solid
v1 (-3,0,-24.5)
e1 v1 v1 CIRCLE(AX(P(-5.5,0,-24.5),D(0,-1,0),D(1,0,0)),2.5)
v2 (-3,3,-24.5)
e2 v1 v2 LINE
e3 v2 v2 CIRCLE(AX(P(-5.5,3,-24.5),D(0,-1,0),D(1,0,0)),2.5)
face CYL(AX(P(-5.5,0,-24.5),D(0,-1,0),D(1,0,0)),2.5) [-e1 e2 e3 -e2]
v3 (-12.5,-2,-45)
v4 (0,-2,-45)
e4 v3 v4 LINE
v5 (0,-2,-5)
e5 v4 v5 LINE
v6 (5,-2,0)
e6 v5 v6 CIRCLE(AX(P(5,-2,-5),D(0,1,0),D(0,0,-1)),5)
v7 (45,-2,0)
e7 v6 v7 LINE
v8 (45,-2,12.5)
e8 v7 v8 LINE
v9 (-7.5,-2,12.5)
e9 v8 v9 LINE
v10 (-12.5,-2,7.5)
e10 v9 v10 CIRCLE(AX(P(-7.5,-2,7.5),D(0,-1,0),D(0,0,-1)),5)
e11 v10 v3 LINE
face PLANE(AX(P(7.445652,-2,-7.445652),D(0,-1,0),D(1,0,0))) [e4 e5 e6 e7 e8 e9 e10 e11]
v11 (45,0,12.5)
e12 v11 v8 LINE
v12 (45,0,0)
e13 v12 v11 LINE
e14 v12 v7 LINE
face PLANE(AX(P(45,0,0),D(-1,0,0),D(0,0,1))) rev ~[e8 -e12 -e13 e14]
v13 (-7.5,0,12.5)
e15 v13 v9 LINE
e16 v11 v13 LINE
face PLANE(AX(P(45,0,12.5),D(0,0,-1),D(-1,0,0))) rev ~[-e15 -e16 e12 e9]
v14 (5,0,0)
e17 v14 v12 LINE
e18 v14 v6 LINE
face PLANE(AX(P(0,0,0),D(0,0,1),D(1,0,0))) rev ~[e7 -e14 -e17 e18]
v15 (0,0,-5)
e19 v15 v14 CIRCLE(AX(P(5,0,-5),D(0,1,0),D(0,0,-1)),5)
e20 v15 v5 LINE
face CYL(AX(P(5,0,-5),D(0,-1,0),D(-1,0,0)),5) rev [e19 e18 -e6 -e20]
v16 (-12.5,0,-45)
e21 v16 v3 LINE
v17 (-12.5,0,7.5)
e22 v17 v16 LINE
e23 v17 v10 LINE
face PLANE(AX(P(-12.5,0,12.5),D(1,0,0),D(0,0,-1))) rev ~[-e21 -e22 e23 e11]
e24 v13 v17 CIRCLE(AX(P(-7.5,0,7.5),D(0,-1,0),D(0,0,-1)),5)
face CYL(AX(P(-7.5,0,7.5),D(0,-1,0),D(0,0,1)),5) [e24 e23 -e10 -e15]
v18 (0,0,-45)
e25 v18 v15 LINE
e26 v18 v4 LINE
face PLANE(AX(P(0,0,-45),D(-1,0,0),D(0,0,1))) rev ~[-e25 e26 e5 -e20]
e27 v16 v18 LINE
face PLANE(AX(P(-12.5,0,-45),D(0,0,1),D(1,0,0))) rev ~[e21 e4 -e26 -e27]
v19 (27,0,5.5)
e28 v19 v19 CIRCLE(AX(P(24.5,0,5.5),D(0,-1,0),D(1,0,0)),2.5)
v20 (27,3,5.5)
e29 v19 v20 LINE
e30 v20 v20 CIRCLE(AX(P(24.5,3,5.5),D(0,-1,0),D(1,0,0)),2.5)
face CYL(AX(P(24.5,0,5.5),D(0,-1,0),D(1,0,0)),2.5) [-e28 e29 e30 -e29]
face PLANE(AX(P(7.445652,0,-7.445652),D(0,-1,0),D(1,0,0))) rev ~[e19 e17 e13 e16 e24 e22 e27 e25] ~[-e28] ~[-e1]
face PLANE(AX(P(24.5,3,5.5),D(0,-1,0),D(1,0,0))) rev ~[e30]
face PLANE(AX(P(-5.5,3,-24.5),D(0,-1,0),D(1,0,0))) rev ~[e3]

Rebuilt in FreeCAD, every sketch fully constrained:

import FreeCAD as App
import Part
import Sketcher
Q = App.Units.Quantity


def edges_at(feature, points):
    """Names of the edges that pass closest to the given points."""
    edges = feature.Shape.Edges
    near = lambda p: min(range(len(edges)), key=lambda i: edges[i].distToShape(Part.Vertex(*p))[0])
    return sorted({f"Edge{near(p) + 1}" for p in points})

doc = App.newDocument("Part")
body = doc.addObject("PartDesign::Body", "Body")

sketch1 = body.newObject("Sketcher::SketchObject", "Sketch")
sketch1.AttachmentSupport = (doc.getObject("XZ_Plane"), [""])
sketch1.MapMode = "FlatFace"
sketch1.addGeometry(Part.LineSegment(App.Vector(45, 12, 0), App.Vector(-12, 12, 0)), False)
sketch1.addGeometry(Part.LineSegment(App.Vector(-12, 12, 0), App.Vector(-12, -45, 0)), False)
sketch1.addGeometry(Part.LineSegment(App.Vector(-12, -45, 0), App.Vector(0, -45, 0)), False)
sketch1.addGeometry(Part.LineSegment(App.Vector(0, -45, 0), App.Vector(0, 0, 0)), False)
sketch1.addGeometry(Part.LineSegment(App.Vector(0, 0, 0), App.Vector(45, 0, 0)), False)
sketch1.addGeometry(Part.LineSegment(App.Vector(45, 0, 0), App.Vector(45, 12, 0)), False)
sketch1.addConstraint(Sketcher.Constraint("Coincident", 0, 2, 1, 1))
sketch1.addConstraint(Sketcher.Constraint("Coincident", 1, 2, 2, 1))
sketch1.addConstraint(Sketcher.Constraint("Coincident", 2, 2, 3, 1))
sketch1.addConstraint(Sketcher.Constraint("Coincident", 3, 2, 4, 1))
sketch1.addConstraint(Sketcher.Constraint("Coincident", 4, 2, 5, 1))
sketch1.addConstraint(Sketcher.Constraint("Coincident", 5, 2, 0, 1))
sketch1.addConstraint(Sketcher.Constraint("Horizontal", 0))
sketch1.addConstraint(Sketcher.Constraint("Vertical", 1))
sketch1.addConstraint(Sketcher.Constraint("Horizontal", 2))
sketch1.addConstraint(Sketcher.Constraint("Vertical", 3))
sketch1.addConstraint(Sketcher.Constraint("Horizontal", 4))
sketch1.addConstraint(Sketcher.Constraint("Vertical", 5))
sketch1.addConstraint(Sketcher.Constraint("Coincident", 3, 2, -1, 1))
sketch1.addConstraint(Sketcher.Constraint("Equal", 0, 1))
sketch1.addConstraint(Sketcher.Constraint("Equal", 4, 3))
sketch1.addConstraint(Sketcher.Constraint("DistanceX", 4, 1, 4, 2, Q("45 mm")))
sketch1.addConstraint(Sketcher.Constraint("DistanceX", 0, 2, 0, 1, Q("57.5 mm")))
pad1 = body.newObject("PartDesign::Pad", "Pad")
pad1.Profile = sketch1
pad1.Length = 2
doc.recompute()

fillet = body.newObject("PartDesign::Fillet", "Fillet")
fillet.Base = (pad1, edges_at(pad1, [(-12.5, -1, 12.5), (0, -1, 0)]))
fillet.Radius = 5

sketch2 = body.newObject("Sketcher::SketchObject", "Sketch001")
sketch2.AttachmentSupport = (doc.getObject("XZ_Plane"), [""])
sketch2.MapMode = "FlatFace"
sketch2.addGeometry(Part.Circle(App.Vector(24.5, 5.5, 0), App.Vector(0, 0, 1), 2.5), False)
sketch2.addGeometry(Part.Circle(App.Vector(-5.5, -24.5, 0), App.Vector(0, 0, 1), 2.5), False)
sketch2.addConstraint(Sketcher.Constraint("Equal", 0, 1))
sketch2.addConstraint(Sketcher.Constraint("Diameter", 0, Q("5 mm")))
sketch2.addConstraint(Sketcher.Constraint("DistanceX", 1, 3, 0, 3, Q("30 mm")))
sketch2.addConstraint(Sketcher.Constraint("DistanceY", 1, 3, 0, 3, Q("30 mm")))
sketch2.addConstraint(Sketcher.Constraint("DistanceX", -1, 1, 0, 3, Q("24.5 mm")))
sketch2.addConstraint(Sketcher.Constraint("DistanceY", -1, 1, 0, 3, Q("5.5 mm")))
pad2 = body.newObject("PartDesign::Pad", "Pad001")
pad2.Profile = sketch2
pad2.Length = 3
pad2.Reversed = True

doc.recompute()
